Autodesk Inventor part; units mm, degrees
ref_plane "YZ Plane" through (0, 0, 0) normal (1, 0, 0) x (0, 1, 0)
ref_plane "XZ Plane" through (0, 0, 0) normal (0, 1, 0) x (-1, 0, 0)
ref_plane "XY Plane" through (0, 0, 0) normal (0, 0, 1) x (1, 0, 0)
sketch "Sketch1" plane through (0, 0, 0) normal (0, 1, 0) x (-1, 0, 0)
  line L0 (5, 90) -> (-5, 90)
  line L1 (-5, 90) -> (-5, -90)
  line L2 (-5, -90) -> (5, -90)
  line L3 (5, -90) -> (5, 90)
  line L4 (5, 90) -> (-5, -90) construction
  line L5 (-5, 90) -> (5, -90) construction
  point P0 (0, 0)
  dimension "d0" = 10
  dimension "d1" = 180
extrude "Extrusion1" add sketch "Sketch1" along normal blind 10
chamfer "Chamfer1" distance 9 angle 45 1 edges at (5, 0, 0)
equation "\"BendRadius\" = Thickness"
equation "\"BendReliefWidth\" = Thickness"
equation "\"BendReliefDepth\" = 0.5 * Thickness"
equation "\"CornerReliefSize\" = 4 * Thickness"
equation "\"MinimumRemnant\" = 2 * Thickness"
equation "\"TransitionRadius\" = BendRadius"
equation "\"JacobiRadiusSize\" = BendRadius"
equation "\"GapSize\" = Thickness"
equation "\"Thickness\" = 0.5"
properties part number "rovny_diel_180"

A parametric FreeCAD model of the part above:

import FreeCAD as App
import Part
import Sketcher


def edges_at(feature, points):
    """Names of the edges that pass closest to the given points."""
    edges = feature.Shape.Edges
    near = lambda p: min(range(len(edges)), key=lambda i: edges[i].distToShape(Part.Vertex(*p))[0])
    return sorted({f"Edge{near(p) + 1}" for p in points})


def add_polygon(sketch, points):
    """Adds a closed chain of lines whose ends are joined by coincident constraints."""
    first, n = sketch.GeometryCount, len(points)
    for a, b in zip(points, points[1:] + points[:1]):
        sketch.addGeometry(Part.LineSegment(App.Vector(*a, 0), App.Vector(*b, 0)), False)
    for i in range(n):
        sketch.addConstraint(Sketcher.Constraint("Coincident", first + i, 2, first + (i + 1) % n, 1))

doc = App.newDocument("Part")
params = doc.addObject("Spreadsheet::Sheet", "Params")
for row, (alias, value) in enumerate([
    ("sketch1_width", "10 mm"),
    ("sketch1_height", "180 mm"),
    ("pad1_length", "10 mm"),
    ("chamfer_size", "9 mm"),
], start=1):
    params.set(f"A{row}", alias)
    params.set(f"B{row}", "=" + value)
    params.setAlias(f"B{row}", alias)

body = doc.addObject("PartDesign::Body", "Body")

sketch1 = doc.addObject("Sketcher::SketchObject", "Sketch")
body.addObject(sketch1)
sketch1.AttachmentSupport = (doc.XZ_Plane, [""])
sketch1.MapMode = "FlatFace"
add_polygon(sketch1, [(-5, -90), (-5, 90), (5, 90), (5, -90)])
sketch1.addConstraint([
    Sketcher.Constraint("Vertical", 0),
    Sketcher.Constraint("Horizontal", 1),
    Sketcher.Constraint("Vertical", 2),
    Sketcher.Constraint("Horizontal", 3),
    Sketcher.Constraint("Symmetric", 0, 2, 2, 2, -1, 1),
    Sketcher.Constraint("DistanceX", 1, 1, 1, 2, 10.0),
    Sketcher.Constraint("DistanceY", 0, 1, 0, 2, 180.0),
])
sketch1.setExpression("Constraints[9]", "Params.sketch1_width")
sketch1.setExpression("Constraints[10]", "Params.sketch1_height")
pad1 = doc.addObject("PartDesign::Pad", "Pad")
body.addObject(pad1)
pad1.Profile = sketch1
pad1.setExpression("Length", "Params.pad1_length")
pad1.Reversed = True
doc.recompute()

chamfer = doc.addObject("PartDesign::Chamfer", "Chamfer")
body.addObject(chamfer)
chamfer.Base = (pad1, edges_at(pad1, [(5, 0, 0)]))
chamfer.setExpression("Size", "Params.chamfer_size")

doc.recompute()
